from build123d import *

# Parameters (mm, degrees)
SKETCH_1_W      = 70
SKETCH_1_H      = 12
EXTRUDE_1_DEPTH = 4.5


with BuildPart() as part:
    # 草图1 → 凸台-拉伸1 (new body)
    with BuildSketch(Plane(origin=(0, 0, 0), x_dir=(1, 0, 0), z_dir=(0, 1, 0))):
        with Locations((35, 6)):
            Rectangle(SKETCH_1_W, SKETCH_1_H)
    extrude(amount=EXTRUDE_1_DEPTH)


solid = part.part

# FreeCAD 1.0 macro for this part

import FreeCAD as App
import Part
import Sketcher
Q = App.Units.Quantity

doc = App.newDocument("Part")
body = doc.addObject("PartDesign::Body", "Body")

sketch1 = doc.addObject("Sketcher::SketchObject", "Sketch")
body.addObject(sketch1)
sketch1.AttachmentSupport = (doc.XZ_Plane, [""])
sketch1.MapMode = "FlatFace"
sketch1.addGeometry([
    Part.LineSegment(App.Vector(0, -12, 0), App.Vector(0, 0, 0)),
    Part.LineSegment(App.Vector(0, 0, 0), App.Vector(70, 0, 0)),
    Part.LineSegment(App.Vector(70, 0, 0), App.Vector(70, -12, 0)),
    Part.LineSegment(App.Vector(70, -12, 0), App.Vector(0, -12, 0)),
], False)
sketch1.addConstraint([
    Sketcher.Constraint("Coincident", 0, 2, 1, 1),
    Sketcher.Constraint("Coincident", 1, 2, 2, 1),
    Sketcher.Constraint("Coincident", 2, 2, 3, 1),
    Sketcher.Constraint("Coincident", 3, 2, 0, 1),
    Sketcher.Constraint("Vertical", 0),
    Sketcher.Constraint("Horizontal", 1),
    Sketcher.Constraint("Vertical", 2),
    Sketcher.Constraint("Horizontal", 3),
    Sketcher.Constraint("Coincident", 0, 2, -1, 1),
    Sketcher.Constraint("DistanceX", 1, 1, 1, 2, Q("70 mm")),
    Sketcher.Constraint("DistanceY", 0, 1, 0, 2, Q("12 mm")),
])
pad1 = doc.addObject("PartDesign::Pad", "Pad")
body.addObject(pad1)
pad1.Profile = sketch1
pad1.Length = 4.5
pad1.Reversed = True

doc.recompute()
